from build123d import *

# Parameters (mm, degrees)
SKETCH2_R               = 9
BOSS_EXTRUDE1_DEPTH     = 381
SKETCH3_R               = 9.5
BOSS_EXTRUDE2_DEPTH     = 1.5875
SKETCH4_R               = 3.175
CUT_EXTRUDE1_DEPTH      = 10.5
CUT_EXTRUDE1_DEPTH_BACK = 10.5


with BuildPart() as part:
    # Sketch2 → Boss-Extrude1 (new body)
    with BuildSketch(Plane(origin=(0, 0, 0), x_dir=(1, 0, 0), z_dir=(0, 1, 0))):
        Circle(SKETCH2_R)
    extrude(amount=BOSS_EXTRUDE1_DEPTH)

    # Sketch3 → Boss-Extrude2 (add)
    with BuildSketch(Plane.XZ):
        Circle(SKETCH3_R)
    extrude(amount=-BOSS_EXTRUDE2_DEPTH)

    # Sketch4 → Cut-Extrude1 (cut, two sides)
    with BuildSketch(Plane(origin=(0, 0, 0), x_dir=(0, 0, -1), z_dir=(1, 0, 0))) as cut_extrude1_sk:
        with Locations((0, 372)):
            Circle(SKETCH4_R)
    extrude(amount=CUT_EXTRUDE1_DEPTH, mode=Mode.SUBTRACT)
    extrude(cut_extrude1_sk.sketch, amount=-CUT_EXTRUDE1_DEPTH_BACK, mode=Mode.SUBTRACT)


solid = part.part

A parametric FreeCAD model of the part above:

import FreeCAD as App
import Part
import Sketcher

V = App.Vector

doc = App.newDocument("Part")
body = doc.addObject("PartDesign::Body", "Body")

# Sketch on XZ plane
sketch1 = body.newObject("Sketcher::SketchObject", "Sketch")
sketch1.AttachmentSupport = (doc.getObject("XZ_Plane"), [""])
sketch1.MapMode = "FlatFace"
sketch1.addGeometry(Part.Circle(V(0, 0, 0), V(0, 0, 1), 9), False)
sketch1.addConstraint([
    Sketcher.Constraint("Coincident", 0, 3, -1, 1),
    Sketcher.Constraint("Diameter", 0, 18.0),
])
pad1 = body.newObject("PartDesign::Pad", "Pad")
pad1.Profile = sketch1
pad1.Length = 381
pad1.Reversed = True

# Sketch on XZ plane
sketch2 = body.newObject("Sketcher::SketchObject", "Sketch001")
sketch2.AttachmentSupport = (doc.getObject("XZ_Plane"), [""])
sketch2.MapMode = "FlatFace"
sketch2.addGeometry(Part.Circle(V(0, 0, 0), V(0, 0, 1), 10), False)
sketch2.addConstraint([
    Sketcher.Constraint("Coincident", 0, 3, -1, 1),
    Sketcher.Constraint("Diameter", 0, 19.0),
])
pad2 = body.newObject("PartDesign::Pad", "Pad001")
pad2.Profile = sketch2
pad2.Length = 1.5875
pad2.Reversed = True

# Sketch on YZ plane
sketch3 = body.newObject("Sketcher::SketchObject", "Sketch002")
sketch3.AttachmentSupport = (doc.getObject("YZ_Plane"), [""])
sketch3.MapMode = "FlatFace"
sketch3.addGeometry(Part.Circle(V(372, 0, 0), V(0, 0, 1), 3.2), False)
sketch3.addConstraint([
    Sketcher.Constraint("PointOnObject", 0, 3, -1),
    Sketcher.Constraint("Diameter", 0, 6.35),
    Sketcher.Constraint("DistanceX", -1, 1, 0, 3, 372.0),
])
pocket1 = body.newObject("PartDesign::Pocket", "Pocket")
pocket1.Profile = sketch3
pocket1.Type = "ThroughAll"
pocket1.Midplane = True

doc.recompute()
